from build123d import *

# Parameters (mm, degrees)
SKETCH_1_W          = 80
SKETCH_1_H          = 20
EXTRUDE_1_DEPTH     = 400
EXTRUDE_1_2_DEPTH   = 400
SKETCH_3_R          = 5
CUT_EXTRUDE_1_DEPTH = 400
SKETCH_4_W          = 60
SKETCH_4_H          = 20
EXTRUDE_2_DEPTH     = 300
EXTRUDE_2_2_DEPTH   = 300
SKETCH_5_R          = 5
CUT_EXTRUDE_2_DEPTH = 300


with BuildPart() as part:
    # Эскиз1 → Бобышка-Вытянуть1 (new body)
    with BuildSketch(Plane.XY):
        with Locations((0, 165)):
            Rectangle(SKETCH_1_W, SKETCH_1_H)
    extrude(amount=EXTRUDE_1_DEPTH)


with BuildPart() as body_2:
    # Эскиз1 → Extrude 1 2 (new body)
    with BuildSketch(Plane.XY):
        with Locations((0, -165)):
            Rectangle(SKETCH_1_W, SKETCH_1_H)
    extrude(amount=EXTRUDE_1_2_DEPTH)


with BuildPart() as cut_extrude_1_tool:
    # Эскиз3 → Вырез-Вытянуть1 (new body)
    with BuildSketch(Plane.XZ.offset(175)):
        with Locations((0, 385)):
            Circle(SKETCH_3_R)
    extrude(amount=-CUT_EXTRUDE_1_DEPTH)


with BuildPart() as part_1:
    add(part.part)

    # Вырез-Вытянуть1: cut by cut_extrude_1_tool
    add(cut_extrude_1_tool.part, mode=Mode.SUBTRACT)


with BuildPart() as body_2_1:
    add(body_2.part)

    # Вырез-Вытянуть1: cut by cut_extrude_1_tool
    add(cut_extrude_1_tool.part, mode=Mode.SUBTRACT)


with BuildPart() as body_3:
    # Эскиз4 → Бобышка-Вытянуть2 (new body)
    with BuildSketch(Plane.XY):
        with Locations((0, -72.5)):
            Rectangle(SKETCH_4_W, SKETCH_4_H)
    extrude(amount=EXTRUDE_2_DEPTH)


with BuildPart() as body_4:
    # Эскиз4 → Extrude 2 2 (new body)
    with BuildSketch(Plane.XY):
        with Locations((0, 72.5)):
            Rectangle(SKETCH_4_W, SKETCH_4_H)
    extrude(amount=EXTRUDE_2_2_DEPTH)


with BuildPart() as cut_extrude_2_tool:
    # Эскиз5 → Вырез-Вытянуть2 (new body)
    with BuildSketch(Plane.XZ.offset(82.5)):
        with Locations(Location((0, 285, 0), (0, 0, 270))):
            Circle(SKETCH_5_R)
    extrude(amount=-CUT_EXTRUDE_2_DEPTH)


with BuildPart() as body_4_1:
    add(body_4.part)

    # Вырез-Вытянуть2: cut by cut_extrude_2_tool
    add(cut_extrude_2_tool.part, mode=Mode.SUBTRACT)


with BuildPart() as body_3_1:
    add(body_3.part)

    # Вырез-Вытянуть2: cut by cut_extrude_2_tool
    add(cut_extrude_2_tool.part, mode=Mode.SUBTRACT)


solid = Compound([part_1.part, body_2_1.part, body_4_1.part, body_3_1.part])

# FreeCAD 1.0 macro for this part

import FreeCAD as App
import Part
import Sketcher
from FreeCAD import Vector

doc = App.newDocument("Part")
body = doc.addObject("PartDesign::Body", "Body")

# Sketch on XY plane
sketch1 = body.newObject("Sketcher::SketchObject", "Sketch")
sketch1.AttachmentSupport = (doc.getObject("XY_Plane"), [""])
sketch1.MapMode = "FlatFace"
sketch1.addGeometry([
    Part.LineSegment(Vector(-40, 175, 0), Vector(-40, 155, 0)),
    Part.LineSegment(Vector(-40, 155, 0), Vector(40, 155, 0)),
    Part.LineSegment(Vector(40, 155, 0), Vector(40, 175, 0)),
    Part.LineSegment(Vector(40, 175, 0), Vector(-40, 175, 0)),
], False)
sketch1.addConstraint([
    Sketcher.Constraint("Coincident", 0, 2, 1, 1),
    Sketcher.Constraint("Coincident", 1, 2, 2, 1),
    Sketcher.Constraint("Coincident", 2, 2, 3, 1),
    Sketcher.Constraint("Coincident", 3, 2, 0, 1),
    Sketcher.Constraint("Vertical", 0),
    Sketcher.Constraint("Horizontal", 1),
    Sketcher.Constraint("Vertical", 2),
    Sketcher.Constraint("Horizontal", 3),
    Sketcher.Constraint("DistanceX", 1, 1, 1, 2, 80.0),
    Sketcher.Constraint("DistanceY", 0, 2, 0, 1, 20.0),
    Sketcher.Constraint("DistanceX", 0, 2, -1, 1, 40.0),
    Sketcher.Constraint("DistanceY", -1, 1, 0, 2, 155.0),
])
pad1 = body.newObject("PartDesign::Pad", "Pad")
pad1.Profile = sketch1
pad1.Length = 400
body2 = doc.addObject("PartDesign::Body", "Body001")

# Sketch on XY plane
sketch2 = body2.newObject("Sketcher::SketchObject", "Sketch001")
sketch2.AttachmentSupport = (doc.getObject("XY_Plane001"), [""])
sketch2.MapMode = "FlatFace"
sketch2.addGeometry([
    Part.LineSegment(Vector(-40, -155, 0), Vector(-40, -175, 0)),
    Part.LineSegment(Vector(-40, -175, 0), Vector(40, -175, 0)),
    Part.LineSegment(Vector(40, -175, 0), Vector(40, -155, 0)),
    Part.LineSegment(Vector(40, -155, 0), Vector(-40, -155, 0)),
], False)
sketch2.addConstraint([
    Sketcher.Constraint("Coincident", 0, 2, 1, 1),
    Sketcher.Constraint("Coincident", 1, 2, 2, 1),
    Sketcher.Constraint("Coincident", 2, 2, 3, 1),
    Sketcher.Constraint("Coincident", 3, 2, 0, 1),
    Sketcher.Constraint("Vertical", 0),
    Sketcher.Constraint("Horizontal", 1),
    Sketcher.Constraint("Vertical", 2),
    Sketcher.Constraint("Horizontal", 3),
    Sketcher.Constraint("DistanceX", 1, 1, 1, 2, 80.0),
    Sketcher.Constraint("DistanceY", 0, 2, 0, 1, 20.0),
    Sketcher.Constraint("DistanceX", 0, 2, -1, 1, 40.0),
    Sketcher.Constraint("DistanceY", 0, 2, -1, 1, 175.0),
])
pad2 = body2.newObject("PartDesign::Pad", "Pad001")
pad2.Profile = sketch2
pad2.Length = 400
body3 = doc.addObject("PartDesign::Body", "Body002")

# Sketch on XZ plane
sketch3 = body3.newObject("Sketcher::SketchObject", "Sketch002")
sketch3.AttachmentSupport = (doc.getObject("XZ_Plane002"), [""])
sketch3.MapMode = "FlatFace"
sketch3.AttachmentOffset = App.Placement(Vector(0, 0, 175), App.Rotation())
sketch3.addGeometry(Part.Circle(Vector(0, 385, 0), Vector(0, 0, 1), 5), False)
sketch3.addConstraint([
    Sketcher.Constraint("PointOnObject", 0, 3, -2),
    Sketcher.Constraint("Diameter", 0, 10.0),
    Sketcher.Constraint("DistanceY", -1, 1, 0, 3, 385.0),
])
pad3 = body3.newObject("PartDesign::Pad", "Pad002")
pad3.Profile = sketch3
pad3.Length = 400
pad3.Reversed = True
doc.recompute()

body4 = doc.addObject("PartDesign::Body", "Body003")
body4.BaseFeature = body3
boolean = body.newObject("PartDesign::Boolean", "Boolean")
boolean.Type = "Cut"
boolean.addObjects([body4])
doc.recompute()

boolean2 = body2.newObject("PartDesign::Boolean", "Boolean001")
boolean2.Type = "Cut"
boolean2.addObjects([body3])
body5 = doc.addObject("PartDesign::Body", "Body004")

# Sketch on XY plane
sketch4 = body5.newObject("Sketcher::SketchObject", "Sketch003")
sketch4.AttachmentSupport = (doc.getObject("XY_Plane004"), [""])
sketch4.MapMode = "FlatFace"
sketch4.addGeometry([
    Part.LineSegment(Vector(-30, -62, 0), Vector(-30, -82, 0)),
    Part.LineSegment(Vector(-30, -82, 0), Vector(30, -82, 0)),
    Part.LineSegment(Vector(30, -82, 0), Vector(30, -62, 0)),
    Part.LineSegment(Vector(30, -62, 0), Vector(-30, -62, 0)),
], False)
sketch4.addConstraint([
    Sketcher.Constraint("Coincident", 0, 2, 1, 1),
    Sketcher.Constraint("Coincident", 1, 2, 2, 1),
    Sketcher.Constraint("Coincident", 2, 2, 3, 1),
    Sketcher.Constraint("Coincident", 3, 2, 0, 1),
    Sketcher.Constraint("Vertical", 0),
    Sketcher.Constraint("Horizontal", 1),
    Sketcher.Constraint("Vertical", 2),
    Sketcher.Constraint("Horizontal", 3),
    Sketcher.Constraint("DistanceX", 1, 1, 1, 2, 60.0),
    Sketcher.Constraint("DistanceY", 0, 2, 0, 1, 20.0),
    Sketcher.Constraint("DistanceX", 0, 2, -1, 1, 30.0),
    Sketcher.Constraint("DistanceY", 0, 2, -1, 1, 82.5),
])
pad4 = body5.newObject("PartDesign::Pad", "Pad003")
pad4.Profile = sketch4
pad4.Length = 300
body6 = doc.addObject("PartDesign::Body", "Body005")

# Sketch on XY plane
sketch5 = body6.newObject("Sketcher::SketchObject", "Sketch004")
sketch5.AttachmentSupport = (doc.getObject("XY_Plane005"), [""])
sketch5.MapMode = "FlatFace"
sketch5.addGeometry([
    Part.LineSegment(Vector(-30, 82, 0), Vector(-30, 62, 0)),
    Part.LineSegment(Vector(-30, 62, 0), Vector(30, 62, 0)),
    Part.LineSegment(Vector(30, 62, 0), Vector(30, 82, 0)),
    Part.LineSegment(Vector(30, 82, 0), Vector(-30, 82, 0)),
], False)
sketch5.addConstraint([
    Sketcher.Constraint("Coincident", 0, 2, 1, 1),
    Sketcher.Constraint("Coincident", 1, 2, 2, 1),
    Sketcher.Constraint("Coincident", 2, 2, 3, 1),
    Sketcher.Constraint("Coincident", 3, 2, 0, 1),
    Sketcher.Constraint("Vertical", 0),
    Sketcher.Constraint("Horizontal", 1),
    Sketcher.Constraint("Vertical", 2),
    Sketcher.Constraint("Horizontal", 3),
    Sketcher.Constraint("DistanceX", 1, 1, 1, 2, 60.0),
    Sketcher.Constraint("DistanceY", 0, 2, 0, 1, 20.0),
    Sketcher.Constraint("DistanceX", 0, 2, -1, 1, 30.0),
    Sketcher.Constraint("DistanceY", -1, 1, 0, 2, 62.5),
])
pad5 = body6.newObject("PartDesign::Pad", "Pad004")
pad5.Profile = sketch5
pad5.Length = 300
body7 = doc.addObject("PartDesign::Body", "Body006")

# Sketch on XZ plane
sketch6 = body7.newObject("Sketcher::SketchObject", "Sketch005")
sketch6.AttachmentSupport = (doc.getObject("XZ_Plane006"), [""])
sketch6.MapMode = "FlatFace"
sketch6.AttachmentOffset = App.Placement(Vector(0, 0, 82.5), App.Rotation())
sketch6.addGeometry(Part.Circle(Vector(0, 285, 0), Vector(0, 0, 1), 5), False)
sketch6.addConstraint([
    Sketcher.Constraint("PointOnObject", 0, 3, -2),
    Sketcher.Constraint("Diameter", 0, 10.0),
    Sketcher.Constraint("DistanceY", -1, 1, 0, 3, 285.0),
])
pad6 = body7.newObject("PartDesign::Pad", "Pad005")
pad6.Profile = sketch6
pad6.Length = 300
pad6.Reversed = True
doc.recompute()

body8 = doc.addObject("PartDesign::Body", "Body007")
body8.BaseFeature = body7
boolean3 = body6.newObject("PartDesign::Boolean", "Boolean002")
boolean3.Type = "Cut"
boolean3.addObjects([body8])
doc.recompute()

boolean4 = body5.newObject("PartDesign::Boolean", "Boolean003")
boolean4.Type = "Cut"
boolean4.addObjects([body7])

doc.recompute()
